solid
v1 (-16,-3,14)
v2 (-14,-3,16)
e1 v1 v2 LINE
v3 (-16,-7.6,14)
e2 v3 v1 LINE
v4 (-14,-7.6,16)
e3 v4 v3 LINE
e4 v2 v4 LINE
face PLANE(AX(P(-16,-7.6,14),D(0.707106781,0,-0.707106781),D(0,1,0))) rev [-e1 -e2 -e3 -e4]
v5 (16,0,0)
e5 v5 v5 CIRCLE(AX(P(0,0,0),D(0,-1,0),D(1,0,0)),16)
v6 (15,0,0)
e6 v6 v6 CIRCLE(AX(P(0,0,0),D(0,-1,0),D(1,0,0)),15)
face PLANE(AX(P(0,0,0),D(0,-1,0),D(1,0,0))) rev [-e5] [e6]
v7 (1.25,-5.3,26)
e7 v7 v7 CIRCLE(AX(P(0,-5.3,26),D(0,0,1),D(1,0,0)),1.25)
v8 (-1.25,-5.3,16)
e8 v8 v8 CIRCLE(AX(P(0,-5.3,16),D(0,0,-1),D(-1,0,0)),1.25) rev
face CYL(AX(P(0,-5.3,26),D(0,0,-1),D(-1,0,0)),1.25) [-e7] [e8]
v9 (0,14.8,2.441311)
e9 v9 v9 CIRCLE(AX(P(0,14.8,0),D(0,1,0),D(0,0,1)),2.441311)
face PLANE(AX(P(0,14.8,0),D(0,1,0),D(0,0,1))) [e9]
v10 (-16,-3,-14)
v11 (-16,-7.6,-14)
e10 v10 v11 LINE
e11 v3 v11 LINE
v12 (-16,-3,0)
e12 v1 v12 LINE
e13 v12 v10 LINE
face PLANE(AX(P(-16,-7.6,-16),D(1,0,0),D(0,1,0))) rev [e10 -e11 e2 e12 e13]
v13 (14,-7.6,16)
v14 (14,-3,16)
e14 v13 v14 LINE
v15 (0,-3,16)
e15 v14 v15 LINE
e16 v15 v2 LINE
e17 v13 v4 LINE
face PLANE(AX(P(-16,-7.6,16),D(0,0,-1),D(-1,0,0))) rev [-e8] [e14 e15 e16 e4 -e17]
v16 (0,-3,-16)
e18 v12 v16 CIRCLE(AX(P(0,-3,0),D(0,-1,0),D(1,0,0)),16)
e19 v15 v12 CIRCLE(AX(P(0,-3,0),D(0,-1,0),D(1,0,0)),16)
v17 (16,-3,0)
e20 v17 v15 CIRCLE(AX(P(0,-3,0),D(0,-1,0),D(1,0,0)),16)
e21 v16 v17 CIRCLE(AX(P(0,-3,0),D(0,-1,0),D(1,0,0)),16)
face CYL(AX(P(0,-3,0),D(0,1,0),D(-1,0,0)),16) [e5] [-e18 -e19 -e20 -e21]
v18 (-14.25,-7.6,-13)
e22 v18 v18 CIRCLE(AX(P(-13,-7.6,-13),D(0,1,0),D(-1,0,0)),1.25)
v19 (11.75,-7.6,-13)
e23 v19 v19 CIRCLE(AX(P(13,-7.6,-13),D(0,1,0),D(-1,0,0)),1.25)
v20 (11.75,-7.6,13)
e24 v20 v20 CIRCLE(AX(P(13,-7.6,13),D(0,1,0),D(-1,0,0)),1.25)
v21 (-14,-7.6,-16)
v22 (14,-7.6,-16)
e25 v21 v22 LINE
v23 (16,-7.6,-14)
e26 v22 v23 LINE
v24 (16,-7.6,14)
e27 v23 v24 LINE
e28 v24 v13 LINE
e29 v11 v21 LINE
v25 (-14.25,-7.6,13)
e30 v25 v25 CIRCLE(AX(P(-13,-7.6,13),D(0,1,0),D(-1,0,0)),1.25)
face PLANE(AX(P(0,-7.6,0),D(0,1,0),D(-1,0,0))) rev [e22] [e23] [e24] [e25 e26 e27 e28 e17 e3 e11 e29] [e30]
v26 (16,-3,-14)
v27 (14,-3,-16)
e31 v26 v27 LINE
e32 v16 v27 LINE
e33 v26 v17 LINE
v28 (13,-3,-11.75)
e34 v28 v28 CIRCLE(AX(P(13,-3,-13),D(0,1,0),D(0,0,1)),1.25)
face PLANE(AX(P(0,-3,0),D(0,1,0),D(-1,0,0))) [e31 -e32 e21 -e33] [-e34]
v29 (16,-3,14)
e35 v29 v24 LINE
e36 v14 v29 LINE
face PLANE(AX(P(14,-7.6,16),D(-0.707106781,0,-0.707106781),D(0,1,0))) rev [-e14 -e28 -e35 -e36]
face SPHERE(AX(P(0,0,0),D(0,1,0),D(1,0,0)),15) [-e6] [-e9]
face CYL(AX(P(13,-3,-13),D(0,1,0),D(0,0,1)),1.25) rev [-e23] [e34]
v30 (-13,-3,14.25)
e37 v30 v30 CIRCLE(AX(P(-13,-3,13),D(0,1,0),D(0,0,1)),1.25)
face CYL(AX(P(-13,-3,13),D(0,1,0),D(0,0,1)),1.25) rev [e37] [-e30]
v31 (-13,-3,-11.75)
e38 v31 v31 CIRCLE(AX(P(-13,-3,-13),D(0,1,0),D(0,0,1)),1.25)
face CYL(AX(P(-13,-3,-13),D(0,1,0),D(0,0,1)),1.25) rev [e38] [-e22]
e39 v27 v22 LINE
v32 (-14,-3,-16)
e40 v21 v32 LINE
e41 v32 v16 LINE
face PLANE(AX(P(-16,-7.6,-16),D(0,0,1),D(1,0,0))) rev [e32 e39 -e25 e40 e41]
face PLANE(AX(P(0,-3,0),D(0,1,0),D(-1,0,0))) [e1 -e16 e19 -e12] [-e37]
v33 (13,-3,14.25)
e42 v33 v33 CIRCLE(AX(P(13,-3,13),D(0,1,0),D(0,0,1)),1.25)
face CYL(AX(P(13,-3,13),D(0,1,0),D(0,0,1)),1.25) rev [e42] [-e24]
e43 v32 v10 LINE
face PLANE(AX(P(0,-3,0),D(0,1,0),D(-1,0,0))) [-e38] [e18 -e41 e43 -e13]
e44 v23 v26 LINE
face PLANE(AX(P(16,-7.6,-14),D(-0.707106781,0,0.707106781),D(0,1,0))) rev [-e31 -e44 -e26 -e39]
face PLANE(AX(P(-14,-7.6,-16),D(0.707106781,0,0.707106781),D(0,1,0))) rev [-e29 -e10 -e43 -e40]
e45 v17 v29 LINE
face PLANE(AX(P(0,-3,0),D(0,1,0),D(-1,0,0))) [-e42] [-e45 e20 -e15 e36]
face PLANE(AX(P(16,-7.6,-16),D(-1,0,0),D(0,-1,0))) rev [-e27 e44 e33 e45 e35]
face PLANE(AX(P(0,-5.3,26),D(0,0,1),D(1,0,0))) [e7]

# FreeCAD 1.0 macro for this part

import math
import FreeCAD as App
import Part
import Sketcher
from FreeCAD import Vector
Q = App.Units.Quantity


def edges_at(feature, points):
    """Names of the edges that pass closest to the given points."""
    edges = feature.Shape.Edges
    near = lambda p: min(range(len(edges)), key=lambda i: edges[i].distToShape(Part.Vertex(*p))[0])
    return sorted({f"Edge{near(p) + 1}" for p in points})

doc = App.newDocument("Part")
params = doc.addObject("Spreadsheet::Sheet", "Params")
for row, (alias, value) in enumerate([
    ("sketch1_radius", "15 mm"),
    ("revolution_angle", "360 deg"),
    ("sketch2_diameter", "32 mm"),
    ("pad1_length", "3 mm"),
    ("sketch3_width", "32 mm"),
    ("pad2_length", "4.6 mm"),
    ("sketch4_diameter", "2.5 mm"),
    ("hole_diameter", "2.5 mm"),
    ("chamfer_size", "2 mm"),
    ("sketch5_diameter", "2.5 mm"),
    ("pad3_length", "10 mm"),
    ("sketch6_diameter", "32 mm"),
], start=1):
    params.set(f"A{row}", alias)
    params.set(f"B{row}", "=" + value)
    params.setAlias(f"B{row}", alias)

body = doc.addObject("PartDesign::Body", "Body")

# Sketch on XY plane
sketch1 = body.newObject("Sketcher::SketchObject", "Sketch")
sketch1.AttachmentSupport = (doc.getObject("XY_Plane"), [""])
sketch1.MapMode = "FlatFace"
sketch1.addGeometry([
    Part.LineSegment(Vector(0, 0, 0), Vector(15, 0, 0)),
    Part.ArcOfCircle(Part.Circle(Vector(0, 0, 0), Vector(0, 0, 1), 15), math.radians(0), math.radians(90)),
    Part.LineSegment(Vector(0, 15, 0), Vector(0, 0, 0)),
], False)
sketch1.addConstraint([
    Sketcher.Constraint("Coincident", 0, 2, 1, 1),
    Sketcher.Constraint("Coincident", 1, 2, 2, 1),
    Sketcher.Constraint("Coincident", 2, 2, 0, 1),
    Sketcher.Constraint("Horizontal", 0),
    Sketcher.Constraint("Vertical", 2),
    Sketcher.Constraint("Coincident", 1, 3, -1, 1),
    Sketcher.Constraint("Coincident", 2, 2, -1, 1),
    Sketcher.Constraint("Radius", 1, Q("15 mm")),
])
sketch1.setExpression("Constraints[7]", "Params.sketch1_radius")
revolution = body.newObject("PartDesign::Revolution", "Revolution")
revolution.Profile = sketch1
revolution.ReferenceAxis = (sketch1, ["V_Axis"])
revolution.setExpression("Angle", "Params.revolution_angle")

# Sketch on XZ plane
sketch2 = body.newObject("Sketcher::SketchObject", "Sketch001")
sketch2.AttachmentSupport = (doc.getObject("XZ_Plane"), [""])
sketch2.MapMode = "FlatFace"
sketch2.addGeometry(Part.Circle(Vector(0, 0, 0), Vector(0, 0, 1), 16), False)
sketch2.addConstraint([
    Sketcher.Constraint("Coincident", 0, 3, -1, 1),
    Sketcher.Constraint("Diameter", 0, Q("32 mm")),
])
sketch2.setExpression("Constraints[1]", "Params.sketch2_diameter")
pad1 = body.newObject("PartDesign::Pad", "Pad")
pad1.Profile = sketch2
pad1.setExpression("Length", "Params.pad1_length")

# Sketch on XZ plane
sketch3 = body.newObject("Sketcher::SketchObject", "Sketch002")
sketch3.AttachmentSupport = (doc.getObject("XZ_Plane"), [""])
sketch3.MapMode = "FlatFace"
sketch3.AttachmentOffset = App.Placement(Vector(0, 0, 3), App.Rotation())
sketch3.addGeometry([
    Part.LineSegment(Vector(-16, 16, 0), Vector(-16, -16, 0)),
    Part.LineSegment(Vector(-16, -16, 0), Vector(16, -16, 0)),
    Part.LineSegment(Vector(16, -16, 0), Vector(16, 16, 0)),
    Part.LineSegment(Vector(16, 16, 0), Vector(-16, 16, 0)),
], False)
sketch3.addConstraint([
    Sketcher.Constraint("Coincident", 0, 2, 1, 1),
    Sketcher.Constraint("Coincident", 1, 2, 2, 1),
    Sketcher.Constraint("Coincident", 2, 2, 3, 1),
    Sketcher.Constraint("Coincident", 3, 2, 0, 1),
    Sketcher.Constraint("Vertical", 0),
    Sketcher.Constraint("Horizontal", 1),
    Sketcher.Constraint("Vertical", 2),
    Sketcher.Constraint("Horizontal", 3),
    Sketcher.Constraint("Symmetric", 0, 2, 2, 2, -1, 1),
    Sketcher.Constraint("Equal", 3, 0),
    Sketcher.Constraint("DistanceX", 1, 1, 1, 2, Q("32 mm")),
])
sketch3.setExpression("Constraints[10]", "Params.sketch3_width")
pad2 = body.newObject("PartDesign::Pad", "Pad001")
pad2.Profile = sketch3
pad2.setExpression("Length", "Params.pad2_length")

# Sketch on XZ plane
sketch4 = body.newObject("Sketcher::SketchObject", "Sketch003")
sketch4.AttachmentSupport = (doc.getObject("XZ_Plane"), [""])
sketch4.MapMode = "FlatFace"
sketch4.AttachmentOffset = App.Placement(Vector(0, 0, 3), App.Rotation())
sketch4.addGeometry([
    Part.Circle(Vector(-13, -13, 0), Vector(0, 0, 1), 1.2),
    Part.Circle(Vector(13, 13, 0), Vector(0, 0, 1), 1.2),
    Part.Circle(Vector(13, -13, 0), Vector(0, 0, 1), 1.2),
    Part.Circle(Vector(-13, 13, 0), Vector(0, 0, 1), 1.2),
], False)
sketch4.addConstraint([
    Sketcher.Constraint("Equal", 0, 1),
    Sketcher.Constraint("Equal", 1, 2),
    Sketcher.Constraint("Equal", 2, 3),
    Sketcher.Constraint("Symmetric", 0, 3, 1, 3, -1, 1),
    Sketcher.Constraint("Symmetric", 2, 3, 3, 3, -1, 1),
    Sketcher.Constraint("Symmetric", 0, 3, 2, 3, -2),
    Sketcher.Constraint("Diameter", 0, Q("2.5 mm")),
    Sketcher.Constraint("DistanceX", 0, 3, -1, 1, Q("13 mm")),
    Sketcher.Constraint("DistanceY", 0, 3, -1, 1, Q("13 mm")),
])
sketch4.setExpression("Constraints[6]", "Params.sketch4_diameter")
doc.recompute()
hole = body.newObject("PartDesign::Hole", "Hole")
hole.Profile = sketch4
hole.ThreadType = "None"
hole.setExpression("Diameter", "Params.hole_diameter")
hole.DepthType = "ThroughAll"
hole.Reversed = True
doc.recompute()

chamfer = body.newObject("PartDesign::Chamfer", "Chamfer")
chamfer.Base = (hole, edges_at(hole, [
    (16, -5.3, -16),
    (16, -5.3, 16),
    (-16, -5.3, 16),
    (-16, -5.3, -16),
]))
chamfer.setExpression("Size", "Params.chamfer_size")

# Sketch on XY plane
sketch5 = body.newObject("Sketcher::SketchObject", "Sketch004")
sketch5.AttachmentSupport = (doc.getObject("XY_Plane"), [""])
sketch5.MapMode = "FlatFace"
sketch5.AttachmentOffset = App.Placement(Vector(0, 0, 16), App.Rotation())
sketch5.addGeometry(Part.Circle(Vector(0, -5.3, 0), Vector(0, 0, 1), 1.2), False)
sketch5.addConstraint([
    Sketcher.Constraint("PointOnObject", 0, 3, -2),
    Sketcher.Constraint("Diameter", 0, Q("2.5 mm")),
    Sketcher.Constraint("DistanceY", 0, 3, -1, 1, Q("5.3 mm")),
])
sketch5.setExpression("Constraints[1]", "Params.sketch5_diameter")
pad3 = body.newObject("PartDesign::Pad", "Pad002")
pad3.Profile = sketch5
pad3.setExpression("Length", "Params.pad3_length")

# Sketch on XZ plane
sketch6 = body.newObject("Sketcher::SketchObject", "Sketch005")
sketch6.AttachmentSupport = (doc.getObject("XZ_Plane"), [""])
sketch6.MapMode = "FlatFace"
sketch6.AttachmentOffset = App.Placement(Vector(0, 0, -14.8), App.Rotation())
sketch6.addGeometry(Part.Circle(Vector(0, 0, 0), Vector(0, 0, 1), 16), False)
sketch6.addConstraint([
    Sketcher.Constraint("Coincident", 0, 3, -1, 1),
    Sketcher.Constraint("Diameter", 0, Q("32 mm")),
])
sketch6.setExpression("Constraints[1]", "Params.sketch6_diameter")
pocket1 = body.newObject("PartDesign::Pocket", "Pocket")
pocket1.Profile = sketch6
pocket1.Type = "ThroughAll"

doc.recompute()
